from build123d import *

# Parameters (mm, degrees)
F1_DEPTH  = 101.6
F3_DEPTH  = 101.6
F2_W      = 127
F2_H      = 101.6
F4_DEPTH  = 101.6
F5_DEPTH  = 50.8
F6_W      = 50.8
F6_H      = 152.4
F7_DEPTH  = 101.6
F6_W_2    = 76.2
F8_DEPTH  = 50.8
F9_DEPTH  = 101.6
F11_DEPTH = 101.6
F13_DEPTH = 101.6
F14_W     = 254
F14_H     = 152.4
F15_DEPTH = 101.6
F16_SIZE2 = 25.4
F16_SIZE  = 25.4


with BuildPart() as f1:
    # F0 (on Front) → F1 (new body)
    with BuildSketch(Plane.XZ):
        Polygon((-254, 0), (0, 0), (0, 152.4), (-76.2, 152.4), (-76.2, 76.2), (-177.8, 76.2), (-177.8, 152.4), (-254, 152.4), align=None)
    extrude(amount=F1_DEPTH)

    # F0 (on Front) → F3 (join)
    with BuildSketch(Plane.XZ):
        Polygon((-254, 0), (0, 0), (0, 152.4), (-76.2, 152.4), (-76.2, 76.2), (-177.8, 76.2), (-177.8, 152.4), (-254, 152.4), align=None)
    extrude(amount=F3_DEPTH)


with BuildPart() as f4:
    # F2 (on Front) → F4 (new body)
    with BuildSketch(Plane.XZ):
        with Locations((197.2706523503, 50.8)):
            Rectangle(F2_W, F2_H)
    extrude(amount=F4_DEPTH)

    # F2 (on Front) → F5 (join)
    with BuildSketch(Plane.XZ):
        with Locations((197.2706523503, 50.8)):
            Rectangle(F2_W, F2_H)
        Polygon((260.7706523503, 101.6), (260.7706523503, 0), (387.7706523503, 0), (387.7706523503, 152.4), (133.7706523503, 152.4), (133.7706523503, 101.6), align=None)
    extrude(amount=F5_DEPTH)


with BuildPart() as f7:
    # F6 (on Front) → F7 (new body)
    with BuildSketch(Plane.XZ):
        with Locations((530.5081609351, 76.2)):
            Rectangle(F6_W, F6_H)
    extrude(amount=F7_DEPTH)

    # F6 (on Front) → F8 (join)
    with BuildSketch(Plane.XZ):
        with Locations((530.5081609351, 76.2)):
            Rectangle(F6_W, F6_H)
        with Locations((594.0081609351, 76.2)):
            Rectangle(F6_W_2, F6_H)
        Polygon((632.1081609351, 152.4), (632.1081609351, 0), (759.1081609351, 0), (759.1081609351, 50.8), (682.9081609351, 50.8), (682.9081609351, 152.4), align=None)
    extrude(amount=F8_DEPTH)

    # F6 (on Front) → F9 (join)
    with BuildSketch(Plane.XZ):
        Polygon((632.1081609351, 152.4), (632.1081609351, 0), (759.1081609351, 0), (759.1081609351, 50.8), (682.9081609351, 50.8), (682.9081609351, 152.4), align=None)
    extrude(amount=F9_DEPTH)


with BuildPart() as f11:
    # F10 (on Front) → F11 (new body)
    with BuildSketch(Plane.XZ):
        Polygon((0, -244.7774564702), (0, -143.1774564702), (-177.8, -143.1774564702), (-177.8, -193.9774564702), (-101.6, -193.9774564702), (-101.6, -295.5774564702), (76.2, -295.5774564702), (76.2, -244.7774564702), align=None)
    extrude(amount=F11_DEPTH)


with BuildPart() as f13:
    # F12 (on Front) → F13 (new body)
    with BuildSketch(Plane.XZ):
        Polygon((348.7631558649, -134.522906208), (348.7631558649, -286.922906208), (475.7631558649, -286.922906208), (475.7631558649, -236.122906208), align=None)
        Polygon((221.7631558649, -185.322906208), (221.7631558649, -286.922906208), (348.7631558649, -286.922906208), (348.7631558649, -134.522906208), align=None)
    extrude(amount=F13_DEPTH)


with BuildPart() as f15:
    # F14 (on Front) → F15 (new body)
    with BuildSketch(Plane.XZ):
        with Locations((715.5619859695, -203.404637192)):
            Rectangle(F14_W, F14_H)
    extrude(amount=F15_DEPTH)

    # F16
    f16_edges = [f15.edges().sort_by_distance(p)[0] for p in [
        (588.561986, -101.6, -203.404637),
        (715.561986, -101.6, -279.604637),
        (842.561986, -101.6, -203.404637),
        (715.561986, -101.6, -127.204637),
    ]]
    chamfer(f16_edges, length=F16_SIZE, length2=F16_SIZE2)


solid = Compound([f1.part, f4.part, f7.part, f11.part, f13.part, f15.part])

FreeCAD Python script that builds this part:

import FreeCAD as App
import Part
import Sketcher

V = App.Vector
Q = App.Units.Quantity


def edges_at(feature, points):
    """Names of the edges that pass closest to the given points."""
    edges = feature.Shape.Edges
    near = lambda p: min(range(len(edges)), key=lambda i: edges[i].distToShape(Part.Vertex(*p))[0])
    return sorted({f"Edge{near(p) + 1}" for p in points})

doc = App.newDocument("Part")
body = doc.addObject("PartDesign::Body", "Body")

# Sketch on XZ plane
sketch1 = body.newObject("Sketcher::SketchObject", "Sketch")
sketch1.AttachmentSupport = (doc.getObject("XZ_Plane"), [""])
sketch1.MapMode = "FlatFace"
sketch1.addGeometry([
    Part.LineSegment(V(-254, 0, 0), V(0, 0, 0)),  # 0
    Part.LineSegment(V(0, 0, 0), V(0, 152.4, 0)),  # 1
    Part.LineSegment(V(0, 152.4, 0), V(-76.2, 152.4, 0)),  # 2
    Part.LineSegment(V(-76.2, 152.4, 0), V(-76.2, 76.2, 0)),  # 3
    Part.LineSegment(V(-76.2, 76.2, 0), V(-177.8, 76.2, 0)),  # 4
    Part.LineSegment(V(-177.8, 76.2, 0), V(-177.8, 152.4, 0)),  # 5
    Part.LineSegment(V(-177.8, 152.4, 0), V(-254, 152.4, 0)),  # 6
    Part.LineSegment(V(-254, 152.4, 0), V(-254, 0, 0)),  # 7
], False)
sketch1.addConstraint([
    Sketcher.Constraint("Coincident", 0, 2, 1, 1),
    Sketcher.Constraint("Coincident", 1, 2, 2, 1),
    Sketcher.Constraint("Coincident", 2, 2, 3, 1),
    Sketcher.Constraint("Coincident", 3, 2, 4, 1),
    Sketcher.Constraint("Coincident", 4, 2, 5, 1),
    Sketcher.Constraint("Coincident", 5, 2, 6, 1),
    Sketcher.Constraint("Coincident", 6, 2, 7, 1),
    Sketcher.Constraint("Coincident", 7, 2, 0, 1),
    Sketcher.Constraint("Horizontal", 0),
    Sketcher.Constraint("Vertical", 1),
    Sketcher.Constraint("Horizontal", 2),
    Sketcher.Constraint("Vertical", 3),
    Sketcher.Constraint("Horizontal", 4),
    Sketcher.Constraint("Vertical", 5),
    Sketcher.Constraint("Horizontal", 6),
    Sketcher.Constraint("Vertical", 7),
    Sketcher.Constraint("Coincident", 0, 2, -1, 1),
    Sketcher.Constraint("Horizontal", 2, 2, 5, 2),
    Sketcher.Constraint("Equal", 2, 6),
    Sketcher.Constraint("Equal", 6, 3),
    Sketcher.Constraint("DistanceX", 0, 1, 0, 2, Q("10 in")),
    Sketcher.Constraint("DistanceX", 2, 2, 2, 1, Q("3 in")),
    Sketcher.Constraint("DistanceY", 1, 1, 1, 2, Q("6 in")),
])
pad1 = body.newObject("PartDesign::Pad", "Pad")
pad1.Profile = sketch1
pad1.Length = Q("4 in")

# Sketch on XZ plane
sketch2 = body.newObject("Sketcher::SketchObject", "Sketch001")
sketch2.AttachmentSupport = (doc.getObject("XZ_Plane"), [""])
sketch2.MapMode = "FlatFace"
sketch2.addGeometry([
    Part.LineSegment(V(-254, 0, 0), V(0, 0, 0)),  # 0
    Part.LineSegment(V(0, 0, 0), V(0, 152.4, 0)),  # 1
    Part.LineSegment(V(0, 152.4, 0), V(-76.2, 152.4, 0)),  # 2
    Part.LineSegment(V(-76.2, 152.4, 0), V(-76.2, 76.2, 0)),  # 3
    Part.LineSegment(V(-76.2, 76.2, 0), V(-177.8, 76.2, 0)),  # 4
    Part.LineSegment(V(-177.8, 76.2, 0), V(-177.8, 152.4, 0)),  # 5
    Part.LineSegment(V(-177.8, 152.4, 0), V(-254, 152.4, 0)),  # 6
    Part.LineSegment(V(-254, 152.4, 0), V(-254, 0, 0)),  # 7
], False)
sketch2.addConstraint([
    Sketcher.Constraint("Coincident", 0, 2, 1, 1),
    Sketcher.Constraint("Coincident", 1, 2, 2, 1),
    Sketcher.Constraint("Coincident", 2, 2, 3, 1),
    Sketcher.Constraint("Coincident", 3, 2, 4, 1),
    Sketcher.Constraint("Coincident", 4, 2, 5, 1),
    Sketcher.Constraint("Coincident", 5, 2, 6, 1),
    Sketcher.Constraint("Coincident", 6, 2, 7, 1),
    Sketcher.Constraint("Coincident", 7, 2, 0, 1),
    Sketcher.Constraint("Horizontal", 0),
    Sketcher.Constraint("Vertical", 1),
    Sketcher.Constraint("Horizontal", 2),
    Sketcher.Constraint("Vertical", 3),
    Sketcher.Constraint("Horizontal", 4),
    Sketcher.Constraint("Vertical", 5),
    Sketcher.Constraint("Horizontal", 6),
    Sketcher.Constraint("Vertical", 7),
    Sketcher.Constraint("Coincident", 0, 2, -1, 1),
    Sketcher.Constraint("Horizontal", 2, 2, 5, 2),
    Sketcher.Constraint("Equal", 2, 6),
    Sketcher.Constraint("Equal", 6, 3),
    Sketcher.Constraint("DistanceX", 0, 1, 0, 2, Q("10 in")),
    Sketcher.Constraint("DistanceX", 2, 2, 2, 1, Q("3 in")),
    Sketcher.Constraint("DistanceY", 1, 1, 1, 2, Q("6 in")),
])
pad2 = body.newObject("PartDesign::Pad", "Pad001")
pad2.Profile = sketch2
pad2.Length = Q("4 in")
body2 = doc.addObject("PartDesign::Body", "Body001")

# Sketch on XZ plane
sketch3 = body2.newObject("Sketcher::SketchObject", "Sketch002")
sketch3.AttachmentSupport = (doc.getObject("XZ_Plane001"), [""])
sketch3.MapMode = "FlatFace"
sketch3.addGeometry([
    Part.LineSegment(V(133.770652, 101.6, 0), V(133.770652, 0, 0)),
    Part.LineSegment(V(133.770652, 0, 0), V(260.770652, 0, 0)),
    Part.LineSegment(V(260.770652, 0, 0), V(260.770652, 101.6, 0)),
    Part.LineSegment(V(260.770652, 101.6, 0), V(133.770652, 101.6, 0)),
], False)
sketch3.addConstraint([
    Sketcher.Constraint("Coincident", 0, 2, 1, 1),
    Sketcher.Constraint("Coincident", 1, 2, 2, 1),
    Sketcher.Constraint("Coincident", 2, 2, 3, 1),
    Sketcher.Constraint("Coincident", 3, 2, 0, 1),
    Sketcher.Constraint("Vertical", 0),
    Sketcher.Constraint("Horizontal", 1),
    Sketcher.Constraint("Vertical", 2),
    Sketcher.Constraint("Horizontal", 3),
    Sketcher.Constraint("PointOnObject", 0, 2, -1),
    Sketcher.Constraint("DistanceX", 1, 1, 1, 2, Q("5 in")),
    Sketcher.Constraint("DistanceY", 0, 2, 0, 1, Q("4 in")),
    Sketcher.Constraint("DistanceX", -1, 1, 0, 2, Q("133.770652 mm")),
])
pad3 = body2.newObject("PartDesign::Pad", "Pad002")
pad3.Profile = sketch3
pad3.Length = Q("4 in")

# Sketch on XZ plane
sketch4 = body2.newObject("Sketcher::SketchObject", "Sketch003")
sketch4.AttachmentSupport = (doc.getObject("XZ_Plane001"), [""])
sketch4.MapMode = "FlatFace"
sketch4.addGeometry([
    Part.LineSegment(V(133.770652, 0, 0), V(387.770652, 0, 0)),
    Part.LineSegment(V(387.770652, 0, 0), V(387.770652, 152.4, 0)),
    Part.LineSegment(V(387.770652, 152.4, 0), V(133.770652, 152.4, 0)),
    Part.LineSegment(V(133.770652, 152.4, 0), V(133.770652, 0, 0)),
], False)
sketch4.addConstraint([
    Sketcher.Constraint("Coincident", 0, 2, 1, 1),
    Sketcher.Constraint("Coincident", 1, 2, 2, 1),
    Sketcher.Constraint("Coincident", 2, 2, 3, 1),
    Sketcher.Constraint("Coincident", 3, 2, 0, 1),
    Sketcher.Constraint("Horizontal", 0),
    Sketcher.Constraint("Vertical", 1),
    Sketcher.Constraint("Horizontal", 2),
    Sketcher.Constraint("Vertical", 3),
    Sketcher.Constraint("PointOnObject", 0, 2, -1),
    Sketcher.Constraint("DistanceX", 0, 1, 0, 2, Q("10 in")),
    Sketcher.Constraint("DistanceY", 1, 1, 1, 2, Q("6 in")),
    Sketcher.Constraint("DistanceX", -1, 1, 0, 2, Q("387.770652 mm")),
])
pad4 = body2.newObject("PartDesign::Pad", "Pad003")
pad4.Profile = sketch4
pad4.Length = Q("2 in")
body3 = doc.addObject("PartDesign::Body", "Body002")

# Sketch on XZ plane
sketch5 = body3.newObject("Sketcher::SketchObject", "Sketch004")
sketch5.AttachmentSupport = (doc.getObject("XZ_Plane002"), [""])
sketch5.MapMode = "FlatFace"
sketch5.addGeometry([
    Part.LineSegment(V(505.108161, 152.4, 0), V(505.108161, 0, 0)),
    Part.LineSegment(V(505.108161, 0, 0), V(555.908161, 0, 0)),
    Part.LineSegment(V(555.908161, 0, 0), V(555.908161, 152.4, 0)),
    Part.LineSegment(V(555.908161, 152.4, 0), V(505.108161, 152.4, 0)),
], False)
sketch5.addConstraint([
    Sketcher.Constraint("Coincident", 0, 2, 1, 1),
    Sketcher.Constraint("Coincident", 1, 2, 2, 1),
    Sketcher.Constraint("Coincident", 2, 2, 3, 1),
    Sketcher.Constraint("Coincident", 3, 2, 0, 1),
    Sketcher.Constraint("Vertical", 0),
    Sketcher.Constraint("Horizontal", 1),
    Sketcher.Constraint("Vertical", 2),
    Sketcher.Constraint("Horizontal", 3),
    Sketcher.Constraint("PointOnObject", 0, 2, -1),
    Sketcher.Constraint("DistanceX", 1, 1, 1, 2, Q("2 in")),
    Sketcher.Constraint("DistanceY", 0, 2, 0, 1, Q("6 in")),
    Sketcher.Constraint("DistanceX", -1, 1, 0, 2, Q("505.108161 mm")),
])
pad5 = body3.newObject("PartDesign::Pad", "Pad004")
pad5.Profile = sketch5
pad5.Length = Q("4 in")

# Sketch on XZ plane
sketch6 = body3.newObject("Sketcher::SketchObject", "Sketch005")
sketch6.AttachmentSupport = (doc.getObject("XZ_Plane002"), [""])
sketch6.MapMode = "FlatFace"
sketch6.addGeometry([
    Part.LineSegment(V(505.108161, 152.4, 0), V(505.108161, 0, 0)),  # 0
    Part.LineSegment(V(505.108161, 0, 0), V(759.108161, 0, 0)),  # 1
    Part.LineSegment(V(759.108161, 0, 0), V(759.108161, 50.8, 0)),  # 2
    Part.LineSegment(V(759.108161, 50.8, 0), V(682.908161, 50.8, 0)),  # 3
    Part.LineSegment(V(682.908161, 50.8, 0), V(682.908161, 152.4, 0)),  # 4
    Part.LineSegment(V(682.908161, 152.4, 0), V(505.108161, 152.4, 0)),  # 5
], False)
sketch6.addConstraint([
    Sketcher.Constraint("Coincident", 0, 2, 1, 1),
    Sketcher.Constraint("Coincident", 1, 2, 2, 1),
    Sketcher.Constraint("Coincident", 2, 2, 3, 1),
    Sketcher.Constraint("Coincident", 3, 2, 4, 1),
    Sketcher.Constraint("Coincident", 4, 2, 5, 1),
    Sketcher.Constraint("Coincident", 5, 2, 0, 1),
    Sketcher.Constraint("Vertical", 0),
    Sketcher.Constraint("Horizontal", 1),
    Sketcher.Constraint("Vertical", 2),
    Sketcher.Constraint("Horizontal", 3),
    Sketcher.Constraint("Vertical", 4),
    Sketcher.Constraint("Horizontal", 5),
    Sketcher.Constraint("PointOnObject", 0, 2, -1),
    Sketcher.Constraint("DistanceX", 1, 1, 1, 2, Q("10 in")),
    Sketcher.Constraint("DistanceX", 3, 2, 3, 1, Q("3 in")),
    Sketcher.Constraint("DistanceY", 0, 2, 0, 1, Q("6 in")),
    Sketcher.Constraint("DistanceY", 2, 1, 2, 2, Q("2 in")),
    Sketcher.Constraint("DistanceX", -1, 1, 0, 2, Q("505.108161 mm")),
])
pad6 = body3.newObject("PartDesign::Pad", "Pad005")
pad6.Profile = sketch6
pad6.Length = Q("2 in")

# Sketch on XZ plane
sketch7 = body3.newObject("Sketcher::SketchObject", "Sketch006")
sketch7.AttachmentSupport = (doc.getObject("XZ_Plane002"), [""])
sketch7.MapMode = "FlatFace"
sketch7.addGeometry([
    Part.LineSegment(V(632.108161, 152.4, 0), V(632.108161, 0, 0)),  # 0
    Part.LineSegment(V(632.108161, 0, 0), V(759.108161, 0, 0)),  # 1
    Part.LineSegment(V(759.108161, 0, 0), V(759.108161, 50.8, 0)),  # 2
    Part.LineSegment(V(759.108161, 50.8, 0), V(682.908161, 50.8, 0)),  # 3
    Part.LineSegment(V(682.908161, 50.8, 0), V(682.908161, 152.4, 0)),  # 4
    Part.LineSegment(V(682.908161, 152.4, 0), V(632.108161, 152.4, 0)),  # 5
], False)
sketch7.addConstraint([
    Sketcher.Constraint("Coincident", 0, 2, 1, 1),
    Sketcher.Constraint("Coincident", 1, 2, 2, 1),
    Sketcher.Constraint("Coincident", 2, 2, 3, 1),
    Sketcher.Constraint("Coincident", 3, 2, 4, 1),
    Sketcher.Constraint("Coincident", 4, 2, 5, 1),
    Sketcher.Constraint("Coincident", 5, 2, 0, 1),
    Sketcher.Constraint("Vertical", 0),
    Sketcher.Constraint("Horizontal", 1),
    Sketcher.Constraint("Vertical", 2),
    Sketcher.Constraint("Horizontal", 3),
    Sketcher.Constraint("Vertical", 4),
    Sketcher.Constraint("Horizontal", 5),
    Sketcher.Constraint("PointOnObject", 0, 2, -1),
    Sketcher.Constraint("Equal", 5, 2),
    Sketcher.Constraint("DistanceX", 1, 1, 1, 2, Q("5 in")),
    Sketcher.Constraint("DistanceX", 3, 2, 3, 1, Q("3 in")),
    Sketcher.Constraint("DistanceY", 0, 2, 0, 1, Q("6 in")),
    Sketcher.Constraint("DistanceX", -1, 1, 0, 2, Q("632.108161 mm")),
])
pad7 = body3.newObject("PartDesign::Pad", "Pad006")
pad7.Profile = sketch7
pad7.Length = Q("4 in")
body4 = doc.addObject("PartDesign::Body", "Body003")

# Sketch on XZ plane
sketch8 = body4.newObject("Sketcher::SketchObject", "Sketch007")
sketch8.AttachmentSupport = (doc.getObject("XZ_Plane003"), [""])
sketch8.MapMode = "FlatFace"
sketch8.addGeometry([
    Part.LineSegment(V(0, -244.777456, 0), V(0, -143.177456, 0)),  # 0
    Part.LineSegment(V(0, -143.177456, 0), V(-177.8, -143.177456, 0)),  # 1
    Part.LineSegment(V(-177.8, -143.177456, 0), V(-177.8, -193.977456, 0)),  # 2
    Part.LineSegment(V(-177.8, -193.977456, 0), V(-101.6, -193.977456, 0)),  # 3
    Part.LineSegment(V(-101.6, -193.977456, 0), V(-101.6, -295.577456, 0)),  # 4
    Part.LineSegment(V(-101.6, -295.577456, 0), V(76.2, -295.577456, 0)),  # 5
    Part.LineSegment(V(76.2, -295.577456, 0), V(76.2, -244.777456, 0)),  # 6
    Part.LineSegment(V(76.2, -244.777456, 0), V(0, -244.777456, 0)),  # 7
], False)
sketch8.addConstraint([
    Sketcher.Constraint("Coincident", 0, 2, 1, 1),
    Sketcher.Constraint("Coincident", 1, 2, 2, 1),
    Sketcher.Constraint("Coincident", 2, 2, 3, 1),
    Sketcher.Constraint("Coincident", 3, 2, 4, 1),
    Sketcher.Constraint("Coincident", 4, 2, 5, 1),
    Sketcher.Constraint("Coincident", 5, 2, 6, 1),
    Sketcher.Constraint("Coincident", 6, 2, 7, 1),
    Sketcher.Constraint("Coincident", 7, 2, 0, 1),
    Sketcher.Constraint("Vertical", 0),
    Sketcher.Constraint("Horizontal", 1),
    Sketcher.Constraint("Vertical", 2),
    Sketcher.Constraint("Horizontal", 3),
    Sketcher.Constraint("Vertical", 4),
    Sketcher.Constraint("Horizontal", 5),
    Sketcher.Constraint("Vertical", 6),
    Sketcher.Constraint("Horizontal", 7),
    Sketcher.Constraint("PointOnObject", 0, 2, -2),
    Sketcher.Constraint("Equal", 1, 5),
    Sketcher.Constraint("Equal", 0, 4),
    Sketcher.Constraint("DistanceX", 1, 2, 1, 1, Q("7 in")),
    Sketcher.Constraint("DistanceX", 3, 1, 3, 2, Q("3 in")),
    Sketcher.Constraint("DistanceY", 0, 1, 0, 2, Q("4 in")),
    Sketcher.Constraint("DistanceY", 2, 2, 2, 1, Q("2 in")),
    Sketcher.Constraint("DistanceY", 0, 2, -1, 1, Q("143.177456 mm")),
])
pad8 = body4.newObject("PartDesign::Pad", "Pad007")
pad8.Profile = sketch8
pad8.Length = Q("4 in")
body5 = doc.addObject("PartDesign::Body", "Body004")

# Sketch on XZ plane
sketch9 = body5.newObject("Sketcher::SketchObject", "Sketch008")
sketch9.AttachmentSupport = (doc.getObject("XZ_Plane004"), [""])
sketch9.MapMode = "FlatFace"
sketch9.addGeometry([
    Part.LineSegment(V(475.763156, -286.922906, 0), V(475.763156, -236.122906, 0)),  # 0
    Part.LineSegment(V(475.763156, -236.122906, 0), V(348.763156, -134.522906, 0)),  # 1
    Part.LineSegment(V(348.763156, -134.522906, 0), V(221.763156, -185.322906, 0)),  # 2
    Part.LineSegment(V(221.763156, -185.322906, 0), V(221.763156, -286.922906, 0)),  # 3
    Part.LineSegment(V(221.763156, -286.922906, 0), V(475.763156, -286.922906, 0)),  # 4
], False)
sketch9.addConstraint([
    Sketcher.Constraint("Coincident", 0, 2, 1, 1),
    Sketcher.Constraint("Coincident", 1, 2, 2, 1),
    Sketcher.Constraint("Coincident", 2, 2, 3, 1),
    Sketcher.Constraint("Coincident", 3, 2, 4, 1),
    Sketcher.Constraint("Coincident", 4, 2, 0, 1),
    Sketcher.Constraint("Vertical", 0),
    Sketcher.Constraint("Vertical", 3),
    Sketcher.Constraint("Horizontal", 4),
    Sketcher.Constraint("DistanceX", 4, 1, 4, 2, Q("10 in")),
    Sketcher.Constraint("DistanceY", 0, 1, 0, 2, Q("2 in")),
    Sketcher.Constraint("DistanceY", 3, 2, 3, 1, Q("4 in")),
    Sketcher.Constraint("DistanceX", 1, 2, 0, 2, Q("5 in")),
    Sketcher.Constraint("DistanceY", 0, 2, 1, 2, Q("4 in")),
    Sketcher.Constraint("DistanceX", -1, 1, 0, 2, Q("475.763156 mm")),
    Sketcher.Constraint("DistanceY", 0, 2, -1, 1, Q("236.122906 mm")),
])
pad9 = body5.newObject("PartDesign::Pad", "Pad008")
pad9.Profile = sketch9
pad9.Length = Q("4 in")
body6 = doc.addObject("PartDesign::Body", "Body005")

# Sketch on XZ plane
sketch10 = body6.newObject("Sketcher::SketchObject", "Sketch009")
sketch10.AttachmentSupport = (doc.getObject("XZ_Plane005"), [""])
sketch10.MapMode = "FlatFace"
sketch10.addGeometry([
    Part.LineSegment(V(588.561986, -127.204637, 0), V(588.561986, -279.604637, 0)),
    Part.LineSegment(V(588.561986, -279.604637, 0), V(842.561986, -279.604637, 0)),
    Part.LineSegment(V(842.561986, -279.604637, 0), V(842.561986, -127.204637, 0)),
    Part.LineSegment(V(842.561986, -127.204637, 0), V(588.561986, -127.204637, 0)),
], False)
sketch10.addConstraint([
    Sketcher.Constraint("Coincident", 0, 2, 1, 1),
    Sketcher.Constraint("Coincident", 1, 2, 2, 1),
    Sketcher.Constraint("Coincident", 2, 2, 3, 1),
    Sketcher.Constraint("Coincident", 3, 2, 0, 1),
    Sketcher.Constraint("Vertical", 0),
    Sketcher.Constraint("Horizontal", 1),
    Sketcher.Constraint("Vertical", 2),
    Sketcher.Constraint("Horizontal", 3),
    Sketcher.Constraint("DistanceX", 1, 1, 1, 2, Q("10 in")),
    Sketcher.Constraint("DistanceY", 0, 2, 0, 1, Q("6 in")),
    Sketcher.Constraint("DistanceX", -1, 1, 0, 2, Q("588.561986 mm")),
    Sketcher.Constraint("DistanceY", 0, 2, -1, 1, Q("279.604637 mm")),
])
pad10 = body6.newObject("PartDesign::Pad", "Pad009")
pad10.Profile = sketch10
pad10.Length = Q("4 in")
doc.recompute()

chamfer = body6.newObject("PartDesign::Chamfer", "Chamfer")
chamfer.Base = (pad10, edges_at(pad10, [
    (588.562, -101.6, -203.405),
    (715.562, -101.6, -279.605),
    (842.562, -101.6, -203.405),
    (715.562, -101.6, -127.205),
]))
chamfer.ChamferType = "Two distances"
chamfer.Size = Q("1 in")
chamfer.Size2 = Q("1 in")

doc.recompute()
